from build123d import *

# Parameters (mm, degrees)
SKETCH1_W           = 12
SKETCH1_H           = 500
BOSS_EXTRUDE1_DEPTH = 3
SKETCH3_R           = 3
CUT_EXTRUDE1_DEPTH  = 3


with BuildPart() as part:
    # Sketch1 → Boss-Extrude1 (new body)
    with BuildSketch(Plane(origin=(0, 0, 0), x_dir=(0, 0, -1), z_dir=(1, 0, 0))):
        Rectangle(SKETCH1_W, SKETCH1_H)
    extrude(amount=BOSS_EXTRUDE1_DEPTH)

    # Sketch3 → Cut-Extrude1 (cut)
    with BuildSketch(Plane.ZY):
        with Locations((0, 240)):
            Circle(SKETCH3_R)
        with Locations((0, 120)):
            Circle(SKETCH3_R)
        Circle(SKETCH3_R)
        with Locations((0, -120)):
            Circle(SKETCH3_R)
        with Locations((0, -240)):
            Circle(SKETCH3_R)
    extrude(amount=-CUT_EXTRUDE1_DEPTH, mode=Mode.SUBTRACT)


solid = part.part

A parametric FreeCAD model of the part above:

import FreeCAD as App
import Part
import Sketcher
from FreeCAD import Vector
Q = App.Units.Quantity

doc = App.newDocument("Part")
params = doc.addObject("Spreadsheet::Sheet", "Params")
for row, (alias, value) in enumerate([
    ("sketch1_width", "500 mm"),
    ("sketch1_height", "12 mm"),
    ("pad1_length", "3 mm"),
    ("sketch2_diameter", "6 mm"),
    ("pocket1_length", "3 mm"),
], start=1):
    params.set(f"A{row}", alias)
    params.set(f"B{row}", "=" + value)
    params.setAlias(f"B{row}", alias)

body = doc.addObject("PartDesign::Body", "Body")

sketch1 = body.newObject("Sketcher::SketchObject", "Sketch")
sketch1.AttachmentSupport = (doc.getObject("YZ_Plane"), [""])
sketch1.MapMode = "FlatFace"
sketch1.addGeometry([
    Part.LineSegment(Vector(250, 6, 0), Vector(-250, 6, 0)),
    Part.LineSegment(Vector(-250, 6, 0), Vector(-250, -6, 0)),
    Part.LineSegment(Vector(-250, -6, 0), Vector(250, -6, 0)),
    Part.LineSegment(Vector(250, -6, 0), Vector(250, 6, 0)),
], False)
sketch1.addConstraint([
    Sketcher.Constraint("Coincident", 0, 2, 1, 1),
    Sketcher.Constraint("Coincident", 1, 2, 2, 1),
    Sketcher.Constraint("Coincident", 2, 2, 3, 1),
    Sketcher.Constraint("Coincident", 3, 2, 0, 1),
    Sketcher.Constraint("Horizontal", 0),
    Sketcher.Constraint("Vertical", 1),
    Sketcher.Constraint("Horizontal", 2),
    Sketcher.Constraint("Vertical", 3),
    Sketcher.Constraint("Symmetric", 0, 2, 2, 2, -1, 1),
    Sketcher.Constraint("DistanceX", 0, 2, 0, 1, Q("500 mm")),
    Sketcher.Constraint("DistanceY", 1, 2, 1, 1, Q("12 mm")),
])
sketch1.setExpression("Constraints[9]", "Params.sketch1_width")
sketch1.setExpression("Constraints[10]", "Params.sketch1_height")
pad1 = body.newObject("PartDesign::Pad", "Pad")
pad1.Profile = sketch1
pad1.setExpression("Length", "Params.pad1_length")

sketch2 = body.newObject("Sketcher::SketchObject", "Sketch001")
sketch2.AttachmentSupport = (doc.getObject("YZ_Plane"), [""])
sketch2.MapMode = "FlatFace"
sketch2.addGeometry([
    Part.Circle(Vector(240, 0, 0), Vector(0, 0, 1), 3),
    Part.Circle(Vector(120, 0, 0), Vector(0, 0, 1), 3),
    Part.Circle(Vector(0, 0, 0), Vector(0, 0, 1), 3),
    Part.Circle(Vector(-120, 0, 0), Vector(0, 0, 1), 3),
    Part.Circle(Vector(-240, 0, 0), Vector(0, 0, 1), 3),
], False)
sketch2.addConstraint([
    Sketcher.Constraint("Coincident", 2, 3, -1, 1),
    Sketcher.Constraint("Equal", 0, 1),
    Sketcher.Constraint("Equal", 1, 2),
    Sketcher.Constraint("Equal", 2, 3),
    Sketcher.Constraint("Equal", 3, 4),
    Sketcher.Constraint("Symmetric", 1, 3, 3, 3, -1, 1),
    Sketcher.Constraint("Symmetric", 0, 3, 4, 3, -1, 1),
    Sketcher.Constraint("PointOnObject", 0, 3, -1),
    Sketcher.Constraint("PointOnObject", 1, 3, -1),
    Sketcher.Constraint("Diameter", 0, Q("6 mm")),
    Sketcher.Constraint("DistanceX", -1, 1, 0, 3, Q("240 mm")),
    Sketcher.Constraint("DistanceX", -1, 1, 1, 3, Q("120 mm")),
])
sketch2.setExpression("Constraints[9]", "Params.sketch2_diameter")
pocket1 = body.newObject("PartDesign::Pocket", "Pocket")
pocket1.Profile = sketch2
pocket1.setExpression("Length", "Params.pocket1_length")
pocket1.Reversed = True

doc.recompute()
